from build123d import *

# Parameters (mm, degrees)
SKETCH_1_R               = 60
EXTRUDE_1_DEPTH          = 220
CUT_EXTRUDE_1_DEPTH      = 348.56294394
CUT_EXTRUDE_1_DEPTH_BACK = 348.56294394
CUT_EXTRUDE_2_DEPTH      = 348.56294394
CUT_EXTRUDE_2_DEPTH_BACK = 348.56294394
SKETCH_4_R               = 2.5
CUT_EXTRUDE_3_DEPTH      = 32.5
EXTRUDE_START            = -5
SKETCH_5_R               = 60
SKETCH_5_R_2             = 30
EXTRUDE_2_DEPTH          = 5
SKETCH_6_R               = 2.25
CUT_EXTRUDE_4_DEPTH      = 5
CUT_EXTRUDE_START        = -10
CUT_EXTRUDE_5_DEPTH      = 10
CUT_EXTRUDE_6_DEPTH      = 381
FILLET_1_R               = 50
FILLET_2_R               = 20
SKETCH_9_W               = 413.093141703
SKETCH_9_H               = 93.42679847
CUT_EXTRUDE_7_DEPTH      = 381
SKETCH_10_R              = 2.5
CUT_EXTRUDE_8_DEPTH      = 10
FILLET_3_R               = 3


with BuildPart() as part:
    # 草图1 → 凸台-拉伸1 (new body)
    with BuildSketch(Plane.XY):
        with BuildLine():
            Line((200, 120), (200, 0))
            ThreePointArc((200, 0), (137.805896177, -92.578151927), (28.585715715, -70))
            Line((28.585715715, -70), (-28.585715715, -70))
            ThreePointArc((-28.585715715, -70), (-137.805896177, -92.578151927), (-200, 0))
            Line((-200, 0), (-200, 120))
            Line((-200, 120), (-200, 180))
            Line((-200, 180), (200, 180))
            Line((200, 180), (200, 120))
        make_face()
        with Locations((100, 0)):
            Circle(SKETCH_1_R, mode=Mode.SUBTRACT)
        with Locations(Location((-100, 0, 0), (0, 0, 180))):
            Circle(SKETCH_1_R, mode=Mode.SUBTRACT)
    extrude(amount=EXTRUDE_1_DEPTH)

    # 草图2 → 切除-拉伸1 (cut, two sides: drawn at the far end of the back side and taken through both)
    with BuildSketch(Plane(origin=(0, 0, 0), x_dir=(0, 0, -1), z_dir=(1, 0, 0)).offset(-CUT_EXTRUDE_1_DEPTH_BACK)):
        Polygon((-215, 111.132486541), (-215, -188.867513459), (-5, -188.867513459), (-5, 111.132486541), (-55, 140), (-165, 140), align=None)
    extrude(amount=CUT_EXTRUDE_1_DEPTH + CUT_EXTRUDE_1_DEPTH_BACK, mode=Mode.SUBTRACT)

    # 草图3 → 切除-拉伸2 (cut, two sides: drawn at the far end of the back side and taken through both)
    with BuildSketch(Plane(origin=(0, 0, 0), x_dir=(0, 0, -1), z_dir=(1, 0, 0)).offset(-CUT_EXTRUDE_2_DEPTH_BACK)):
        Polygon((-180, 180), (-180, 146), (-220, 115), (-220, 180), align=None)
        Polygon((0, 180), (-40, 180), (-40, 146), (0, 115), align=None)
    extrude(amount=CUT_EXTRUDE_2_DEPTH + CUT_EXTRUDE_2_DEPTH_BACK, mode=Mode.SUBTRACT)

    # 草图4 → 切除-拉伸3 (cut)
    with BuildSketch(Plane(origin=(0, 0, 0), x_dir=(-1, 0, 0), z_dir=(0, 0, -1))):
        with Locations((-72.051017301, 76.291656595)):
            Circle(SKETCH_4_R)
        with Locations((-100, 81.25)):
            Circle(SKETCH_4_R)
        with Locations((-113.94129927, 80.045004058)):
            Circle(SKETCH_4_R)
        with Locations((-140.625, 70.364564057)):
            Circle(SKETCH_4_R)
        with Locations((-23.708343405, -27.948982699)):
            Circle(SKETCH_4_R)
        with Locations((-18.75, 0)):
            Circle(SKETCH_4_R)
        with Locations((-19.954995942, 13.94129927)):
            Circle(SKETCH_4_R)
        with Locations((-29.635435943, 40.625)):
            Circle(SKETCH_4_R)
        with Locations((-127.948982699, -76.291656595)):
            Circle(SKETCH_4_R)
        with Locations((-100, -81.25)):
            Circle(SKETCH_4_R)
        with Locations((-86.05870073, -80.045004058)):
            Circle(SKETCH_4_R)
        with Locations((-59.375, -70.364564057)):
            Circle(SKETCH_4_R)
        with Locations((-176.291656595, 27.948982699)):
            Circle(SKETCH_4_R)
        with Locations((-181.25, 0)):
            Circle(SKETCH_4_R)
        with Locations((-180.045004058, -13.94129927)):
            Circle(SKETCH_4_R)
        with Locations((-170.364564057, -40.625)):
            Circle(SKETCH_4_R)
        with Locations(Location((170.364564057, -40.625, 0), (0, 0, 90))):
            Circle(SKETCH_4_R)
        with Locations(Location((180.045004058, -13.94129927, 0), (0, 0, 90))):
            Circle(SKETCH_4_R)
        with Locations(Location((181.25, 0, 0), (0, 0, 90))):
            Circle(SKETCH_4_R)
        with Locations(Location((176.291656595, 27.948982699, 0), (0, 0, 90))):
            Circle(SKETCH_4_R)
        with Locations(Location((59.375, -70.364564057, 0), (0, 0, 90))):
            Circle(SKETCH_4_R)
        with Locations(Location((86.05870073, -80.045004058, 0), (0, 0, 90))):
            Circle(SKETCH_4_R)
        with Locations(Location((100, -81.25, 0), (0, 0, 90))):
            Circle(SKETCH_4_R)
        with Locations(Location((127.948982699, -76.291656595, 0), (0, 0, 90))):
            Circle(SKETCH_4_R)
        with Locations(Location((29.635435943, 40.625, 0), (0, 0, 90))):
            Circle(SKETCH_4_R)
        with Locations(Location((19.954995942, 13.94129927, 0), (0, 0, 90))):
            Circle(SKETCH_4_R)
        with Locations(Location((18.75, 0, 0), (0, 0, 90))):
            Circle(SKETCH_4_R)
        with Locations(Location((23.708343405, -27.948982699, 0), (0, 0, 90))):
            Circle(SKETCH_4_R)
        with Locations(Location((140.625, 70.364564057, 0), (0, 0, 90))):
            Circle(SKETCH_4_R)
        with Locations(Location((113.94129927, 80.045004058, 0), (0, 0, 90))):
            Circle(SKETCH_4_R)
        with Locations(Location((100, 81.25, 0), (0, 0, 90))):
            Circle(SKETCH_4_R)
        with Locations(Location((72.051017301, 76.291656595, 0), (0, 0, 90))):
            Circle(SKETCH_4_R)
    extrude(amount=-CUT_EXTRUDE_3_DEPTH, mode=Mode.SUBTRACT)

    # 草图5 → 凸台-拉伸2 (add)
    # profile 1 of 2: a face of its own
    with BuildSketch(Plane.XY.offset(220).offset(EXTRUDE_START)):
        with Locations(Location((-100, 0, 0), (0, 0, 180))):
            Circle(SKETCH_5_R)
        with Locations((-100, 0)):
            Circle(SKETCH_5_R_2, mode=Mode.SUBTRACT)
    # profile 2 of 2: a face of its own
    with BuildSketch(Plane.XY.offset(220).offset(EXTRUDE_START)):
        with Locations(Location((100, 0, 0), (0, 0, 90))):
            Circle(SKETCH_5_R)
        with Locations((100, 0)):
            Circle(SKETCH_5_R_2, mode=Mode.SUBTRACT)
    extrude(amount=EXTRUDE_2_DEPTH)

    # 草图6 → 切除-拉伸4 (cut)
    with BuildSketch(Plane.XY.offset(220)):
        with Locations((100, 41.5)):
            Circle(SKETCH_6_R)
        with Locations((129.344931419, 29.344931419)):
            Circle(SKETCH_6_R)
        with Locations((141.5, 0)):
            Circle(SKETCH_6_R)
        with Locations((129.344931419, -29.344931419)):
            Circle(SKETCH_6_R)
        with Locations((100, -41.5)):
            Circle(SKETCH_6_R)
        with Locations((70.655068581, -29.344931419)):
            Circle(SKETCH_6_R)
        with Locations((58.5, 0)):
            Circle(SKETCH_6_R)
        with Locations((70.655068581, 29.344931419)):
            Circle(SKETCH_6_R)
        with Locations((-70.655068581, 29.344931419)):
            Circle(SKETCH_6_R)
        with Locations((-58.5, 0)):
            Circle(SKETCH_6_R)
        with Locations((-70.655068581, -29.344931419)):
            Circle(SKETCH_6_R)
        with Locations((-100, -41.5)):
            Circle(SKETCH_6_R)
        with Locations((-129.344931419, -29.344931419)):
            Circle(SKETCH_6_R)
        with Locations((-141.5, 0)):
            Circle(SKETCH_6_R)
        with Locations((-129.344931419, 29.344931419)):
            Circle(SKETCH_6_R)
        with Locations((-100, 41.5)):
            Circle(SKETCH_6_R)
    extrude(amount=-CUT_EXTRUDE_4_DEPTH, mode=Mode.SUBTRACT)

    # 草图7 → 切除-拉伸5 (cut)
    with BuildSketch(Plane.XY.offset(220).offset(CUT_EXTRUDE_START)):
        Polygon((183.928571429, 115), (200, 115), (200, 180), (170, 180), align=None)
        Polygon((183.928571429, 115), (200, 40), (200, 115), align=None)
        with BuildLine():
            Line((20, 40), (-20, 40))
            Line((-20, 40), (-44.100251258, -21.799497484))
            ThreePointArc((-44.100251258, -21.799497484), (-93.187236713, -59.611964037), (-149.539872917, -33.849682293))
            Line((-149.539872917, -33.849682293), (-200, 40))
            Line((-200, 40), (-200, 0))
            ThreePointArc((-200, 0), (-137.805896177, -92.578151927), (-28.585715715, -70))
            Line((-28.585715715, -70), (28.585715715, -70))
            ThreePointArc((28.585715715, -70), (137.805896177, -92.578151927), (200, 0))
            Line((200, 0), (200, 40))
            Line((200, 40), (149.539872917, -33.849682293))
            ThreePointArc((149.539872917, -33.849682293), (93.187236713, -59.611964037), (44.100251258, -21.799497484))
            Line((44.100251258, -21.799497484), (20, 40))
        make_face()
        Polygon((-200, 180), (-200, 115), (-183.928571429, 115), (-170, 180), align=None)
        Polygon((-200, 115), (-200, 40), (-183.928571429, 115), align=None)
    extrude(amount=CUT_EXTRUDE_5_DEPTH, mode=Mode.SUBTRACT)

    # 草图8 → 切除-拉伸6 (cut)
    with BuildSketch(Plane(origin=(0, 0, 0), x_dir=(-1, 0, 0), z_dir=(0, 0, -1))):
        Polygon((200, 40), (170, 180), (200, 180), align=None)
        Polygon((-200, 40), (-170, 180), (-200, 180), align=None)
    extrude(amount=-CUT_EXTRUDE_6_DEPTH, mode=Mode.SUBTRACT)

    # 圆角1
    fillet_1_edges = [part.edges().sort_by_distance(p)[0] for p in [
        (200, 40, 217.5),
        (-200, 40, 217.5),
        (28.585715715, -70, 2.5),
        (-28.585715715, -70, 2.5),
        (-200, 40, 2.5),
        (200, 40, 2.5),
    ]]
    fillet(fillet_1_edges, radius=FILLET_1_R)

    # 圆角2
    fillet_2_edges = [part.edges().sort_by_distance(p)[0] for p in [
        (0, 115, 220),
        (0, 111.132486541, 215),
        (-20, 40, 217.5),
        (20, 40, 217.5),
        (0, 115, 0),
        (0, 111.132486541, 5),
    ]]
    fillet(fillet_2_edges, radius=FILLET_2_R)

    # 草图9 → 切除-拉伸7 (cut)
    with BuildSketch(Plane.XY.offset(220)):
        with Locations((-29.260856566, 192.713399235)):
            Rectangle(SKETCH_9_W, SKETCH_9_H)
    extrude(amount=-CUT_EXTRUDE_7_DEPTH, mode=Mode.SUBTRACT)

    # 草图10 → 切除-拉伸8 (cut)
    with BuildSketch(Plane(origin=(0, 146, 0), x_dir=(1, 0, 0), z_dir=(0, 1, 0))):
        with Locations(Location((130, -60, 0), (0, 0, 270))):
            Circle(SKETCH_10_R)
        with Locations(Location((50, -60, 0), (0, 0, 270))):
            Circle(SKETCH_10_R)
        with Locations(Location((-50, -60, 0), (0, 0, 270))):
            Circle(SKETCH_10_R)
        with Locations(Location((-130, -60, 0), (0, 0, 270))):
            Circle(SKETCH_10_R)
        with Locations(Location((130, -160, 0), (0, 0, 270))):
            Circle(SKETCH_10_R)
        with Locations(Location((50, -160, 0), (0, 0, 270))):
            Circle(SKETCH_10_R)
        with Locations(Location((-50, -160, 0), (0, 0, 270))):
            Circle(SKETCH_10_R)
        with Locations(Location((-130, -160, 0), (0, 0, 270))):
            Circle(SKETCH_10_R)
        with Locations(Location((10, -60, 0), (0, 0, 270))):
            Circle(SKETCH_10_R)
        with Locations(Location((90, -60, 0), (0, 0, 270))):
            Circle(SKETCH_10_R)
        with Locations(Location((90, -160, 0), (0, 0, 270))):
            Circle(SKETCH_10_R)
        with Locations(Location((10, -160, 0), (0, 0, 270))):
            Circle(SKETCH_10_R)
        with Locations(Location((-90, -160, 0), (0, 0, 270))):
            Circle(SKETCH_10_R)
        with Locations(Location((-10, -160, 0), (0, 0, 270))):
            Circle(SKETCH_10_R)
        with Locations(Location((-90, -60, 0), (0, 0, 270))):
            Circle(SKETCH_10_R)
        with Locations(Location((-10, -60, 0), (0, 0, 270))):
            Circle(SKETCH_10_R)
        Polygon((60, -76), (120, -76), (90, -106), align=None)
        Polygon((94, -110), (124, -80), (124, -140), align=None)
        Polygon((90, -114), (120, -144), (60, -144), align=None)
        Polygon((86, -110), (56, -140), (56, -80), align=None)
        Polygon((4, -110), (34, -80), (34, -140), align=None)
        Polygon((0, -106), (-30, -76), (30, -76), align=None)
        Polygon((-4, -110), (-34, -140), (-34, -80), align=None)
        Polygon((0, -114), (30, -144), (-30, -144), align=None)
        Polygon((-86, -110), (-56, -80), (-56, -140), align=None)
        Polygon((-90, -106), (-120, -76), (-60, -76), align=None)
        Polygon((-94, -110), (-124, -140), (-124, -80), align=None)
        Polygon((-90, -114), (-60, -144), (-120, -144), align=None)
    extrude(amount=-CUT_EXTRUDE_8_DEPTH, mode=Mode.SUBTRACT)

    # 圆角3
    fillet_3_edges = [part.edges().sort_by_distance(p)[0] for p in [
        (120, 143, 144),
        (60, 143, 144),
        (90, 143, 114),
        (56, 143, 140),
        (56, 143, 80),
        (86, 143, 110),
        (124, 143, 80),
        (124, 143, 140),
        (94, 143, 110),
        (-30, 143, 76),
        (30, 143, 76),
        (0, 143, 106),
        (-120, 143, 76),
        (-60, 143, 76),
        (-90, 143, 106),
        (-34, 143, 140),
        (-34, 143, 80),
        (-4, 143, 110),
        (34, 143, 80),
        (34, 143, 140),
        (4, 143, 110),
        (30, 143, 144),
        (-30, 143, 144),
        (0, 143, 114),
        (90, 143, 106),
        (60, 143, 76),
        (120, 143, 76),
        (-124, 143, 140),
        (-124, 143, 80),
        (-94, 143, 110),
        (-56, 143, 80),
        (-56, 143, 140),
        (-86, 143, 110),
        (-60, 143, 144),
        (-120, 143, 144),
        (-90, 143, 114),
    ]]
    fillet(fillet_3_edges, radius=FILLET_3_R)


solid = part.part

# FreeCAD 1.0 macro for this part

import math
import FreeCAD as App
import Part
import Sketcher

V = App.Vector
Q = App.Units.Quantity


def edges_at(feature, points):
    """Names of the edges that pass closest to the given points."""
    edges = feature.Shape.Edges
    near = lambda p: min(range(len(edges)), key=lambda i: edges[i].distToShape(Part.Vertex(*p))[0])
    return sorted({f"Edge{near(p) + 1}" for p in points})

doc = App.newDocument("Part")
params = doc.addObject("Spreadsheet::Sheet", "Params")
for row, (alias, value) in enumerate([
    ("sketch1_diameter", "120 mm"),
    ("sketch1_radius", "100 mm"),
    ("sketch1_width", "400 mm"),
    ("sketch1_height", "180 mm"),
    ("pad1_length", "220 mm"),
    ("sketch2_width", "300 mm"),
    ("sketch2_height", "210 mm"),
    ("sketch2_height2", "110 mm"),
    ("sketch3_width", "34 mm"),
    ("sketch3_width2", "65 mm"),
    ("sketch3_height", "40 mm"),
    ("sketch4_diameter", "5 mm"),
    ("pocket3_length", "32.5 mm"),
    ("sketch5_diameter", "120 mm"),
    ("sketch5_diameter2", "60 mm"),
    ("pad2_length", "5 mm"),
    ("sketch6_diameter", "4.5 mm"),
    ("pocket4_length", "5 mm"),
    ("sketch7_radius", "60 mm"),
    ("sketch7_radius2", "100 mm"),
    ("sketch7_width", "30 mm"),
    ("sketch7_width2", "40 mm"),
    ("sketch7_height", "140 mm"),
    ("pocket5_length", "10 mm"),
    ("sketch8_width", "30 mm"),
    ("sketch8_height", "140 mm"),
    ("pocket6_length", "381 mm"),
    ("fillet_radius", "50 mm"),
    ("fillet2_radius", "20 mm"),
    ("pocket7_length", "381 mm"),
    ("sketch10_diameter", "5 mm"),
    ("sketch10_width", "60 mm"),
    ("pocket8_length", "10 mm"),
    ("fillet3_radius", "3 mm"),
], start=1):
    params.set(f"A{row}", alias)
    params.set(f"B{row}", "=" + value)
    params.setAlias(f"B{row}", alias)

body = doc.addObject("PartDesign::Body", "Body")

sketch1 = doc.addObject("Sketcher::SketchObject", "Sketch")
body.addObject(sketch1)
sketch1.AttachmentSupport = (doc.XY_Plane, [""])
sketch1.MapMode = "FlatFace"
sketch1.addGeometry([
    Part.ArcOfCircle(Part.Circle(V(100, 0, 0), V(0, 0, 1), 100), math.radians(-136), math.radians(0)),
    Part.LineSegment(V(200, 0, 0), V(200, 180, 0)),
    Part.LineSegment(V(200, 180, 0), V(-200, 180, 0)),
    Part.LineSegment(V(-200, 180, 0), V(-200, 0, 0)),
    Part.ArcOfCircle(Part.Circle(V(-100, 0, 0), V(0, 0, 1), 100), math.radians(180), math.radians(316)),
    Part.LineSegment(V(-29, -70, 0), V(29, -70, 0)),
    Part.Circle(V(100, 0, 0), V(0, 0, 1), 60),
    Part.Circle(V(-100, 0, 0), V(0, 0, 1), 60),
], False)
sketch1.addConstraint([
    Sketcher.Constraint("Tangent", 0, 2, 1, 1),
    Sketcher.Constraint("Coincident", 1, 2, 2, 1),
    Sketcher.Constraint("Coincident", 2, 2, 3, 1),
    Sketcher.Constraint("Tangent", 3, 2, 4, 1),
    Sketcher.Constraint("Coincident", 4, 2, 5, 1),
    Sketcher.Constraint("Coincident", 5, 2, 0, 1),
    Sketcher.Constraint("Vertical", 1),
    Sketcher.Constraint("Horizontal", 2),
    Sketcher.Constraint("Vertical", 3),
    Sketcher.Constraint("Horizontal", 5),
    Sketcher.Constraint("Coincident", 6, 3, 0, 3),
    Sketcher.Constraint("Coincident", 7, 3, 4, 3),
    Sketcher.Constraint("Equal", 0, 4),
    Sketcher.Constraint("Equal", 6, 7),
    Sketcher.Constraint("Symmetric", 0, 3, 4, 3, -1, 1),
    Sketcher.Constraint("PointOnObject", 0, 3, -1),
    Sketcher.Constraint("Diameter", 6, 120.0),
    Sketcher.Constraint("Radius", 0, 100.0),
    Sketcher.Constraint("DistanceX", 2, 2, 2, 1, 400.0),
    Sketcher.Constraint("DistanceY", 1, 1, 1, 2, 180.0),
    Sketcher.Constraint("DistanceY", 4, 2, -1, 1, 70.0),
])
sketch1.setExpression("Constraints[16]", "Params.sketch1_diameter")
sketch1.setExpression("Constraints[17]", "Params.sketch1_radius")
sketch1.setExpression("Constraints[18]", "Params.sketch1_width")
sketch1.setExpression("Constraints[19]", "Params.sketch1_height")
pad1 = doc.addObject("PartDesign::Pad", "Pad")
body.addObject(pad1)
pad1.Profile = sketch1
pad1.setExpression("Length", "Params.pad1_length")

sketch2 = doc.addObject("Sketcher::SketchObject", "Sketch001")
body.addObject(sketch2)
sketch2.AttachmentSupport = (doc.YZ_Plane, [""])
sketch2.MapMode = "FlatFace"
sketch2.addGeometry([
    Part.LineSegment(V(111, 215, 0), V(-189, 215, 0)),
    Part.LineSegment(V(-189, 215, 0), V(-189, 5, 0)),
    Part.LineSegment(V(-189, 5, 0), V(111, 5, 0)),
    Part.LineSegment(V(111, 5, 0), V(140, 55, 0)),
    Part.LineSegment(V(140, 55, 0), V(140, 165, 0)),
    Part.LineSegment(V(140, 165, 0), V(111, 215, 0)),
], False)
sketch2.addConstraint([
    Sketcher.Constraint("Coincident", 0, 2, 1, 1),
    Sketcher.Constraint("Coincident", 1, 2, 2, 1),
    Sketcher.Constraint("Coincident", 2, 2, 3, 1),
    Sketcher.Constraint("Coincident", 3, 2, 4, 1),
    Sketcher.Constraint("Coincident", 4, 2, 5, 1),
    Sketcher.Constraint("Coincident", 5, 2, 0, 1),
    Sketcher.Constraint("Horizontal", 0),
    Sketcher.Constraint("Vertical", 1),
    Sketcher.Constraint("Horizontal", 2),
    Sketcher.Constraint("Vertical", 4),
    Sketcher.Constraint("Vertical", 2, 2, 5, 2),
    Sketcher.Constraint("Equal", 3, 5),
    Sketcher.Constraint("DistanceX", 0, 2, 0, 1, 300.0),
    Sketcher.Constraint("DistanceY", 1, 2, 1, 1, 210.0),
    Sketcher.Constraint("DistanceY", 4, 1, 4, 2, 110.0),
    Sketcher.Constraint("Angle", 3, Q("60 deg")),
    Sketcher.Constraint("DistanceY", -1, 1, 0, 2, 215.0),
    Sketcher.Constraint("DistanceX", -1, 1, 3, 2, 140.0),
])
sketch2.setExpression("Constraints[12]", "Params.sketch2_width")
sketch2.setExpression("Constraints[13]", "Params.sketch2_height")
sketch2.setExpression("Constraints[14]", "Params.sketch2_height2")
pocket1 = doc.addObject("PartDesign::Pocket", "Pocket")
body.addObject(pocket1)
pocket1.Profile = sketch2
pocket1.Type = "ThroughAll"
pocket1.Midplane = True

sketch3 = doc.addObject("Sketcher::SketchObject", "Sketch002")
body.addObject(sketch3)
sketch3.AttachmentSupport = (doc.YZ_Plane, [""])
sketch3.MapMode = "FlatFace"
sketch3.addGeometry([
    Part.LineSegment(V(146, 180, 0), V(180, 180, 0)),
    Part.LineSegment(V(180, 180, 0), V(180, 220, 0)),
    Part.LineSegment(V(180, 220, 0), V(115, 220, 0)),
    Part.LineSegment(V(115, 220, 0), V(146, 180, 0)),
    Part.LineSegment(V(180, 0, 0), V(180, 40, 0)),
    Part.LineSegment(V(180, 40, 0), V(146, 40, 0)),
    Part.LineSegment(V(146, 40, 0), V(115, 0, 0)),
    Part.LineSegment(V(115, 0, 0), V(180, 0, 0)),
], False)
sketch3.addConstraint([
    Sketcher.Constraint("Coincident", 0, 2, 1, 1),
    Sketcher.Constraint("Coincident", 1, 2, 2, 1),
    Sketcher.Constraint("Coincident", 2, 2, 3, 1),
    Sketcher.Constraint("Coincident", 3, 2, 0, 1),
    Sketcher.Constraint("Coincident", 4, 2, 5, 1),
    Sketcher.Constraint("Coincident", 5, 2, 6, 1),
    Sketcher.Constraint("Coincident", 6, 2, 7, 1),
    Sketcher.Constraint("Coincident", 7, 2, 4, 1),
    Sketcher.Constraint("Horizontal", 0),
    Sketcher.Constraint("Vertical", 1),
    Sketcher.Constraint("Horizontal", 2),
    Sketcher.Constraint("Vertical", 4),
    Sketcher.Constraint("Horizontal", 5),
    Sketcher.Constraint("Horizontal", 7),
    Sketcher.Constraint("PointOnObject", 6, 2, -1),
    Sketcher.Constraint("Vertical", 1, 2, 4, 2),
    Sketcher.Constraint("Vertical", 3, 2, 5, 2),
    Sketcher.Constraint("Vertical", 2, 2, 6, 2),
    Sketcher.Constraint("Equal", 1, 4),
    Sketcher.Constraint("DistanceX", 0, 1, 0, 2, 34.0),
    Sketcher.Constraint("DistanceX", 2, 2, 2, 1, 65.0),
    Sketcher.Constraint("DistanceY", 1, 1, 1, 2, 40.0),
    Sketcher.Constraint("DistanceX", -1, 1, 0, 2, 180.0),
    Sketcher.Constraint("DistanceY", -1, 1, 0, 2, 180.0),
])
sketch3.setExpression("Constraints[19]", "Params.sketch3_width")
sketch3.setExpression("Constraints[20]", "Params.sketch3_width2")
sketch3.setExpression("Constraints[21]", "Params.sketch3_height")
pocket2 = doc.addObject("PartDesign::Pocket", "Pocket001")
body.addObject(pocket2)
pocket2.Profile = sketch3
pocket2.Type = "ThroughAll"
pocket2.Midplane = True

sketch4 = doc.addObject("Sketcher::SketchObject", "Sketch003")
body.addObject(sketch4)
sketch4.AttachmentSupport = (doc.XY_Plane, [""])
sketch4.MapMode = "FlatFace"
sketch4.addGeometry([
    Part.Circle(V(72.1, 76.3, 0), V(0, 0, 1), 2.5),
    Part.Circle(V(100, 81.2, 0), V(0, 0, 1), 2.5),
    Part.Circle(V(113.9, 80, 0), V(0, 0, 1), 2.5),
    Part.Circle(V(140.6, 70.4, 0), V(0, 0, 1), 2.5),
    Part.Circle(V(23.7, -27.9, 0), V(0, 0, 1), 2.5),
    Part.Circle(V(18.8, 0, 0), V(0, 0, 1), 2.5),
    Part.Circle(V(20, 13.9, 0), V(0, 0, 1), 2.5),
    Part.Circle(V(29.6, 40.6, 0), V(0, 0, 1), 2.5),
    Part.Circle(V(127.9, -76.3, 0), V(0, 0, 1), 2.5),
    Part.Circle(V(100, -81.2, 0), V(0, 0, 1), 2.5),
    Part.Circle(V(86.1, -80, 0), V(0, 0, 1), 2.5),
    Part.Circle(V(59.4, -70.4, 0), V(0, 0, 1), 2.5),
    Part.Circle(V(176.3, 27.9, 0), V(0, 0, 1), 2.5),
    Part.Circle(V(181.2, 0, 0), V(0, 0, 1), 2.5),
    Part.Circle(V(180, -13.9, 0), V(0, 0, 1), 2.5),
    Part.Circle(V(170.4, -40.6, 0), V(0, 0, 1), 2.5),
    Part.Circle(V(-170.4, -40.6, 0), V(0, 0, 1), 2.5),
    Part.Circle(V(-180, -13.9, 0), V(0, 0, 1), 2.5),
    Part.Circle(V(-181.2, 0, 0), V(0, 0, 1), 2.5),
    Part.Circle(V(-176.3, 27.9, 0), V(0, 0, 1), 2.5),
    Part.Circle(V(-59.4, -70.4, 0), V(0, 0, 1), 2.5),
    Part.Circle(V(-86.1, -80, 0), V(0, 0, 1), 2.5),
    Part.Circle(V(-100, -81.2, 0), V(0, 0, 1), 2.5),
    Part.Circle(V(-127.9, -76.3, 0), V(0, 0, 1), 2.5),
    Part.Circle(V(-29.6, 40.6, 0), V(0, 0, 1), 2.5),
    Part.Circle(V(-20, 13.9, 0), V(0, 0, 1), 2.5),
    Part.Circle(V(-18.8, 0, 0), V(0, 0, 1), 2.5),
    Part.Circle(V(-23.7, -27.9, 0), V(0, 0, 1), 2.5),
    Part.Circle(V(-140.6, 70.4, 0), V(0, 0, 1), 2.5),
    Part.Circle(V(-113.9, 80, 0), V(0, 0, 1), 2.5),
    Part.Circle(V(-100, 81.2, 0), V(0, 0, 1), 2.5),
    Part.Circle(V(-72.1, 76.3, 0), V(0, 0, 1), 2.5),
], False)
sketch4.addConstraint([
    Sketcher.Constraint("Equal", 0, 1),
    Sketcher.Constraint("Equal", 1, 2),
    Sketcher.Constraint("Equal", 2, 3),
    Sketcher.Constraint("Equal", 3, 4),
    Sketcher.Constraint("Equal", 4, 5),
    Sketcher.Constraint("Equal", 5, 6),
    Sketcher.Constraint("Equal", 6, 7),
    Sketcher.Constraint("Equal", 7, 8),
    Sketcher.Constraint("Equal", 8, 9),
    Sketcher.Constraint("Equal", 9, 10),
    Sketcher.Constraint("Equal", 10, 11),
    Sketcher.Constraint("Equal", 11, 12),
    Sketcher.Constraint("Equal", 12, 13),
    Sketcher.Constraint("Equal", 13, 14),
    Sketcher.Constraint("Equal", 14, 15),
    Sketcher.Constraint("Equal", 15, 16),
    Sketcher.Constraint("Equal", 16, 17),
    Sketcher.Constraint("Equal", 17, 18),
    Sketcher.Constraint("Equal", 18, 19),
    Sketcher.Constraint("Equal", 19, 20),
    Sketcher.Constraint("Equal", 20, 21),
    Sketcher.Constraint("Equal", 21, 22),
    Sketcher.Constraint("Equal", 22, 23),
    Sketcher.Constraint("Equal", 23, 24),
    Sketcher.Constraint("Equal", 24, 25),
    Sketcher.Constraint("Equal", 25, 26),
    Sketcher.Constraint("Equal", 26, 27),
    Sketcher.Constraint("Equal", 27, 28),
    Sketcher.Constraint("Equal", 28, 29),
    Sketcher.Constraint("Equal", 29, 30),
    Sketcher.Constraint("Equal", 30, 31),
    Sketcher.Constraint("Symmetric", 13, 3, 18, 3, -1, 1),
    Sketcher.Constraint("Symmetric", 1, 3, 22, 3, -1, 1),
    Sketcher.Constraint("Symmetric", 5, 3, 26, 3, -1, 1),
    Sketcher.Constraint("Symmetric", 9, 3, 30, 3, -1, 1),
    Sketcher.Constraint("Symmetric", 15, 3, 16, 3, -2),
    Sketcher.Constraint("Symmetric", 14, 3, 17, 3, -2),
    Sketcher.Constraint("Symmetric", 12, 3, 19, 3, -2),
    Sketcher.Constraint("Symmetric", 11, 3, 20, 3, -2),
    Sketcher.Constraint("Symmetric", 10, 3, 21, 3, -2),
    Sketcher.Constraint("Symmetric", 9, 3, 22, 3, -2),
    Sketcher.Constraint("Symmetric", 8, 3, 23, 3, -2),
    Sketcher.Constraint("Symmetric", 7, 3, 24, 3, -2),
    Sketcher.Constraint("Symmetric", 6, 3, 25, 3, -2),
    Sketcher.Constraint("Symmetric", 4, 3, 27, 3, -2),
    Sketcher.Constraint("Symmetric", 3, 3, 28, 3, -2),
    Sketcher.Constraint("Symmetric", 2, 3, 29, 3, -2),
    Sketcher.Constraint("Symmetric", 0, 3, 31, 3, -2),
    Sketcher.Constraint("PointOnObject", 5, 3, -1),
    Sketcher.Constraint("PointOnObject", 13, 3, -1),
    Sketcher.Constraint("Diameter", 0, 5.0),
    Sketcher.Constraint("DistanceX", -1, 1, 1, 3, 100.0),
    Sketcher.Constraint("DistanceX", 16, 3, 7, 3, 200.0),
    Sketcher.Constraint("DistanceX", 17, 3, 6, 3, 200.0),
    Sketcher.Constraint("DistanceX", 18, 3, 5, 3, 200.0),
    Sketcher.Constraint("DistanceX", 26, 3, 5, 3, 37.5),
    Sketcher.Constraint("DistanceY", -1, 1, 1, 3, 81.25),
    Sketcher.Constraint("DistanceY", 16, 3, 7, 3, 81.25),
    Sketcher.Constraint("DistanceX", 20, 3, 11, 3, 118.75),
    Sketcher.Constraint("DistanceX", -1, 1, 3, 3, 140.625),
    Sketcher.Constraint("DistanceY", -1, 1, 7, 3, 40.625),
    Sketcher.Constraint("DistanceX", -1, 1, 2, 3, 113.941299),
    Sketcher.Constraint("DistanceY", -1, 1, 6, 3, 13.941299),
    Sketcher.Constraint("DistanceX", -1, 1, 10, 3, 86.058701),
    Sketcher.Constraint("DistanceY", 14, 3, -1, 1, 13.941299),
    Sketcher.Constraint("DistanceX", 0, 3, 2, 3, 41.890282),
    Sketcher.Constraint("DistanceY", 3, 3, 2, 3, 9.68044),
    Sketcher.Constraint("DistanceY", 4, 3, 0, 3, 104.240639),
    Sketcher.Constraint("DistanceY", 4, 3, 6, 3, 41.890282),
    Sketcher.Constraint("DistanceX", 6, 3, 0, 3, 52.096021),
    Sketcher.Constraint("DistanceX", 6, 3, 7, 3, 9.68044),
    Sketcher.Constraint("DistanceX", 4, 3, 8, 3, 104.240639),
    Sketcher.Constraint("DistanceY", 8, 3, 3, 3, 146.656221),
    Sketcher.Constraint("DistanceX", 10, 3, 8, 3, 41.890282),
    Sketcher.Constraint("DistanceY", 10, 3, 4, 3, 52.096021),
    Sketcher.Constraint("DistanceY", 10, 3, 11, 3, 9.68044),
    Sketcher.Constraint("DistanceY", 12, 3, 3, 3, 42.415581),
    Sketcher.Constraint("DistanceX", 0, 3, 12, 3, 104.240639),
    Sketcher.Constraint("DistanceY", 14, 3, 12, 3, 41.890282),
])
sketch4.setExpression("Constraints[50]", "Params.sketch4_diameter")
pocket3 = doc.addObject("PartDesign::Pocket", "Pocket002")
body.addObject(pocket3)
pocket3.Profile = sketch4
pocket3.setExpression("Length", "Params.pocket3_length")
pocket3.Reversed = True

sketch5 = doc.addObject("Sketcher::SketchObject", "Sketch004")
body.addObject(sketch5)
sketch5.AttachmentSupport = (doc.XY_Plane, [""])
sketch5.MapMode = "FlatFace"
sketch5.AttachmentOffset = App.Placement(V(0, 0, 215), App.Rotation())
sketch5.addGeometry([
    Part.Circle(V(-100, 0, 0), V(0, 0, 1), 60),
    Part.Circle(V(-100, 0, 0), V(0, 0, 1), 30),
    Part.Circle(V(100, 0, 0), V(0, 0, 1), 60),
    Part.Circle(V(100, 0, 0), V(0, 0, 1), 30),
], False)
sketch5.addConstraint([
    Sketcher.Constraint("Coincident", 1, 3, 0, 3),
    Sketcher.Constraint("Coincident", 3, 3, 2, 3),
    Sketcher.Constraint("Equal", 0, 2),
    Sketcher.Constraint("Equal", 1, 3),
    Sketcher.Constraint("Symmetric", 0, 3, 2, 3, -1, 1),
    Sketcher.Constraint("PointOnObject", 0, 3, -1),
    Sketcher.Constraint("Diameter", 0, 120.0),
    Sketcher.Constraint("Diameter", 1, 60.0),
    Sketcher.Constraint("DistanceX", 0, 3, -1, 1, 100.0),
])
sketch5.setExpression("Constraints[6]", "Params.sketch5_diameter")
sketch5.setExpression("Constraints[7]", "Params.sketch5_diameter2")
pad2 = doc.addObject("PartDesign::Pad", "Pad001")
body.addObject(pad2)
pad2.Profile = sketch5
pad2.setExpression("Length", "Params.pad2_length")

sketch6 = doc.addObject("Sketcher::SketchObject", "Sketch005")
body.addObject(sketch6)
sketch6.AttachmentSupport = (doc.XY_Plane, [""])
sketch6.MapMode = "FlatFace"
sketch6.AttachmentOffset = App.Placement(V(0, 0, 220), App.Rotation())
sketch6.addGeometry([
    Part.Circle(V(100, 41.5, 0), V(0, 0, 1), 2.2),
    Part.Circle(V(129.3, 29.3, 0), V(0, 0, 1), 2.2),
    Part.Circle(V(141.5, 0, 0), V(0, 0, 1), 2.2),
    Part.Circle(V(129.3, -29.3, 0), V(0, 0, 1), 2.2),
    Part.Circle(V(100, -41.5, 0), V(0, 0, 1), 2.2),
    Part.Circle(V(70.7, -29.3, 0), V(0, 0, 1), 2.2),
    Part.Circle(V(58.5, 0, 0), V(0, 0, 1), 2.2),
    Part.Circle(V(70.7, 29.3, 0), V(0, 0, 1), 2.2),
    Part.Circle(V(-70.7, 29.3, 0), V(0, 0, 1), 2.2),
    Part.Circle(V(-58.5, 0, 0), V(0, 0, 1), 2.2),
    Part.Circle(V(-70.7, -29.3, 0), V(0, 0, 1), 2.2),
    Part.Circle(V(-100, -41.5, 0), V(0, 0, 1), 2.2),
    Part.Circle(V(-129.3, -29.3, 0), V(0, 0, 1), 2.2),
    Part.Circle(V(-141.5, 0, 0), V(0, 0, 1), 2.2),
    Part.Circle(V(-129.3, 29.3, 0), V(0, 0, 1), 2.2),
    Part.Circle(V(-100, 41.5, 0), V(0, 0, 1), 2.2),
], False)
sketch6.addConstraint([
    Sketcher.Constraint("Equal", 0, 1),
    Sketcher.Constraint("Equal", 1, 2),
    Sketcher.Constraint("Equal", 2, 3),
    Sketcher.Constraint("Equal", 3, 4),
    Sketcher.Constraint("Equal", 4, 5),
    Sketcher.Constraint("Equal", 5, 6),
    Sketcher.Constraint("Equal", 6, 7),
    Sketcher.Constraint("Equal", 7, 8),
    Sketcher.Constraint("Equal", 8, 9),
    Sketcher.Constraint("Equal", 9, 10),
    Sketcher.Constraint("Equal", 10, 11),
    Sketcher.Constraint("Equal", 11, 12),
    Sketcher.Constraint("Equal", 12, 13),
    Sketcher.Constraint("Equal", 13, 14),
    Sketcher.Constraint("Equal", 14, 15),
    Sketcher.Constraint("Symmetric", 5, 3, 8, 3, -1, 1),
    Sketcher.Constraint("Symmetric", 6, 3, 9, 3, -1, 1),
    Sketcher.Constraint("Symmetric", 7, 3, 10, 3, -1, 1),
    Sketcher.Constraint("Symmetric", 0, 3, 11, 3, -1, 1),
    Sketcher.Constraint("Symmetric", 1, 3, 12, 3, -1, 1),
    Sketcher.Constraint("Symmetric", 2, 3, 13, 3, -1, 1),
    Sketcher.Constraint("Symmetric", 3, 3, 14, 3, -1, 1),
    Sketcher.Constraint("Symmetric", 4, 3, 15, 3, -1, 1),
    Sketcher.Constraint("Symmetric", 7, 3, 8, 3, -2),
    Sketcher.Constraint("Symmetric", 4, 3, 11, 3, -2),
    Sketcher.Constraint("Symmetric", 3, 3, 12, 3, -2),
    Sketcher.Constraint("PointOnObject", 2, 3, -1),
    Sketcher.Constraint("PointOnObject", 6, 3, -1),
    Sketcher.Constraint("Horizontal", 3, 3, 5, 3),
    Sketcher.Constraint("Diameter", 0, 4.5),
    Sketcher.Constraint("DistanceX", -1, 1, 0, 3, 100.0),
    Sketcher.Constraint("DistanceY", 4, 3, 0, 3, 83.0),
    Sketcher.Constraint("DistanceX", 9, 3, 6, 3, 117.0),
    Sketcher.Constraint("DistanceX", 13, 3, 9, 3, 83.0),
    Sketcher.Constraint("DistanceX", -1, 1, 1, 3, 129.344931),
    Sketcher.Constraint("DistanceY", -1, 1, 1, 3, 29.344931),
    Sketcher.Constraint("DistanceX", -1, 1, 5, 3, 70.655069),
])
sketch6.setExpression("Constraints[29]", "Params.sketch6_diameter")
pocket4 = doc.addObject("PartDesign::Pocket", "Pocket003")
body.addObject(pocket4)
pocket4.Profile = sketch6
pocket4.setExpression("Length", "Params.pocket4_length")

sketch7 = doc.addObject("Sketcher::SketchObject", "Sketch006")
body.addObject(sketch7)
sketch7.AttachmentSupport = (doc.XY_Plane, [""])
sketch7.MapMode = "FlatFace"
sketch7.AttachmentOffset = App.Placement(V(0, 0, 210), App.Rotation())
sketch7.addGeometry([
    Part.LineSegment(V(200, 180, 0), V(170, 180, 0)),
    Part.LineSegment(V(170, 180, 0), V(184, 115, 0)),
    Part.LineSegment(V(184, 115, 0), V(200, 40, 0)),
    Part.LineSegment(V(200, 40, 0), V(200, 180, 0)),
    Part.LineSegment(V(20, 40, 0), V(-20, 40, 0)),
    Part.LineSegment(V(-20, 40, 0), V(-44, -22, 0)),
    Part.ArcOfCircle(Part.Circle(V(-100, 0, 0), V(0, 0, 1), 60), math.radians(-146), math.radians(-21)),
    Part.LineSegment(V(-150, -34, 0), V(-200, 40, 0)),
    Part.LineSegment(V(-200, 40, 0), V(-200, 0, 0)),
    Part.ArcOfCircle(Part.Circle(V(-100, 0, 0), V(0, 0, 1), 100), math.radians(180), math.radians(316)),
    Part.LineSegment(V(-29, -70, 0), V(29, -70, 0)),
    Part.ArcOfCircle(Part.Circle(V(100, 0, 0), V(0, 0, 1), 100), math.radians(-136), math.radians(0)),
    Part.LineSegment(V(200, 0, 0), V(200, 40, 0)),
    Part.LineSegment(V(200, 40, 0), V(150, -34, 0)),
    Part.ArcOfCircle(Part.Circle(V(100, 0, 0), V(0, 0, 1), 60), math.radians(-159), math.radians(-34)),
    Part.LineSegment(V(44, -22, 0), V(20, 40, 0)),
    Part.LineSegment(V(-200, 180, 0), V(-200, 40, 0)),
    Part.LineSegment(V(-200, 40, 0), V(-184, 115, 0)),
    Part.LineSegment(V(-184, 115, 0), V(-170, 180, 0)),
    Part.LineSegment(V(-170, 180, 0), V(-200, 180, 0)),
], False)
sketch7.addConstraint([
    Sketcher.Constraint("Coincident", 0, 2, 1, 1),
    Sketcher.Constraint("Coincident", 1, 2, 2, 1),
    Sketcher.Constraint("Coincident", 2, 2, 3, 1),
    Sketcher.Constraint("Coincident", 3, 2, 0, 1),
    Sketcher.Constraint("Coincident", 4, 2, 5, 1),
    Sketcher.Constraint("Tangent", 5, 2, 6, 2),
    Sketcher.Constraint("Tangent", 6, 1, 7, 1),
    Sketcher.Constraint("Coincident", 7, 2, 8, 1),
    Sketcher.Constraint("Tangent", 8, 2, 9, 1),
    Sketcher.Constraint("Coincident", 9, 2, 10, 1),
    Sketcher.Constraint("Coincident", 10, 2, 11, 1),
    Sketcher.Constraint("Tangent", 11, 2, 12, 1),
    Sketcher.Constraint("Coincident", 12, 2, 13, 1),
    Sketcher.Constraint("Tangent", 13, 2, 14, 2),
    Sketcher.Constraint("Tangent", 14, 1, 15, 1),
    Sketcher.Constraint("Coincident", 15, 2, 4, 1),
    Sketcher.Constraint("Coincident", 16, 2, 17, 1),
    Sketcher.Constraint("Coincident", 17, 2, 18, 1),
    Sketcher.Constraint("Coincident", 18, 2, 19, 1),
    Sketcher.Constraint("Coincident", 19, 2, 16, 1),
    Sketcher.Constraint("Horizontal", 0),
    Sketcher.Constraint("Vertical", 3),
    Sketcher.Constraint("Horizontal", 4),
    Sketcher.Constraint("Vertical", 8),
    Sketcher.Constraint("Horizontal", 10),
    Sketcher.Constraint("Vertical", 12),
    Sketcher.Constraint("Vertical", 16),
    Sketcher.Constraint("Horizontal", 19),
    Sketcher.Constraint("Coincident", 9, 3, 6, 3),
    Sketcher.Constraint("Coincident", 14, 3, 11, 3),
    Sketcher.Constraint("Coincident", 12, 2, 2, 2),
    Sketcher.Constraint("Coincident", 16, 2, 7, 2),
    Sketcher.Constraint("Equal", 9, 11),
    Sketcher.Constraint("Equal", 6, 14),
    Sketcher.Constraint("Symmetric", 6, 3, 11, 3, -1, 1),
    Sketcher.Constraint("Symmetric", 6, 1, 13, 2, -2),
    Sketcher.Constraint("Symmetric", 1, 2, 17, 2, -2),
    Sketcher.Constraint("Symmetric", 0, 2, 18, 2, -2),
    Sketcher.Constraint("Parallel", 1, 2),
    Sketcher.Constraint("Horizontal", 2, 2, 4, 2),
    Sketcher.Constraint("Horizontal", 5, 2, 14, 1),
    Sketcher.Constraint("Equal", 4, 8),
    Sketcher.Constraint("Radius", 6, 60.0),
    Sketcher.Constraint("Radius", 9, 100.0),
    Sketcher.Constraint("DistanceX", 0, 2, 0, 1, 30.0),
    Sketcher.Constraint("DistanceX", 4, 2, 4, 1, 40.0),
    Sketcher.Constraint("DistanceY", 3, 1, 3, 2, 140.0),
    Sketcher.Constraint("DistanceX", 6, 3, -1, 1, 100.0),
    Sketcher.Constraint("DistanceY", -1, 1, 1, 2, 115.0),
    Sketcher.Constraint("DistanceY", 9, 2, -1, 1, 70.0),
])
sketch7.setExpression("Constraints[42]", "Params.sketch7_radius")
sketch7.setExpression("Constraints[43]", "Params.sketch7_radius2")
sketch7.setExpression("Constraints[44]", "Params.sketch7_width")
sketch7.setExpression("Constraints[45]", "Params.sketch7_width2")
sketch7.setExpression("Constraints[46]", "Params.sketch7_height")
pocket5 = doc.addObject("PartDesign::Pocket", "Pocket004")
body.addObject(pocket5)
pocket5.Profile = sketch7
pocket5.setExpression("Length", "Params.pocket5_length")
pocket5.Reversed = True

sketch8 = doc.addObject("Sketcher::SketchObject", "Sketch007")
body.addObject(sketch8)
sketch8.AttachmentSupport = (doc.XY_Plane, [""])
sketch8.MapMode = "FlatFace"
sketch8.addGeometry([
    Part.LineSegment(V(-170, 180, 0), V(-200, 40, 0)),
    Part.LineSegment(V(-200, 40, 0), V(-200, 180, 0)),
    Part.LineSegment(V(-200, 180, 0), V(-170, 180, 0)),
    Part.LineSegment(V(200, 40, 0), V(170, 180, 0)),
    Part.LineSegment(V(170, 180, 0), V(200, 180, 0)),
    Part.LineSegment(V(200, 180, 0), V(200, 40, 0)),
], False)
sketch8.addConstraint([
    Sketcher.Constraint("Coincident", 0, 2, 1, 1),
    Sketcher.Constraint("Coincident", 1, 2, 2, 1),
    Sketcher.Constraint("Coincident", 2, 2, 0, 1),
    Sketcher.Constraint("Coincident", 3, 2, 4, 1),
    Sketcher.Constraint("Coincident", 4, 2, 5, 1),
    Sketcher.Constraint("Coincident", 5, 2, 3, 1),
    Sketcher.Constraint("Vertical", 1),
    Sketcher.Constraint("Horizontal", 2),
    Sketcher.Constraint("Horizontal", 4),
    Sketcher.Constraint("Vertical", 5),
    Sketcher.Constraint("Symmetric", 2, 2, 3, 2, -2),
    Sketcher.Constraint("Symmetric", 0, 2, 5, 2, -2),
    Sketcher.Constraint("DistanceX", 2, 1, 2, 2, 30.0),
    Sketcher.Constraint("DistanceY", 1, 1, 1, 2, 140.0),
    Sketcher.Constraint("DistanceX", 0, 2, -1, 1, 200.0),
    Sketcher.Constraint("DistanceY", -1, 1, 0, 2, 40.0),
])
sketch8.setExpression("Constraints[12]", "Params.sketch8_width")
sketch8.setExpression("Constraints[13]", "Params.sketch8_height")
pocket6 = doc.addObject("PartDesign::Pocket", "Pocket005")
body.addObject(pocket6)
pocket6.Profile = sketch8
pocket6.setExpression("Length", "Params.pocket6_length")
pocket6.Reversed = True
doc.recompute()

fillet = doc.addObject("PartDesign::Fillet", "Fillet")
body.addObject(fillet)
fillet.Base = (pocket6, edges_at(pocket6, [
    (200, 40, 217.5),
    (-200, 40, 217.5),
    (28.586, -70, 2.5),
    (-28.586, -70, 2.5),
    (-200, 40, 2.5),
    (200, 40, 2.5),
]))
fillet.setExpression("Radius", "Params.fillet_radius")
doc.recompute()

fillet2 = doc.addObject("PartDesign::Fillet", "Fillet001")
body.addObject(fillet2)
fillet2.Base = (fillet, edges_at(fillet, [
    (0, 115, 220),
    (0, 111.132, 215),
    (-20, 40, 217.5),
    (20, 40, 217.5),
    (0, 115, 0),
    (0, 111.132, 5),
]))
fillet2.setExpression("Radius", "Params.fillet2_radius")

sketch9 = doc.addObject("Sketcher::SketchObject", "Sketch008")
body.addObject(sketch9)
sketch9.AttachmentSupport = (doc.XY_Plane, [""])
sketch9.MapMode = "FlatFace"
sketch9.AttachmentOffset = App.Placement(V(0, 0, 220), App.Rotation())
sketch9.addGeometry([
    Part.LineSegment(V(-236, 239, 0), V(-236, 146, 0)),
    Part.LineSegment(V(-236, 146, 0), V(177, 146, 0)),
    Part.LineSegment(V(177, 146, 0), V(177, 239, 0)),
    Part.LineSegment(V(177, 239, 0), V(-236, 239, 0)),
], False)
sketch9.addConstraint([
    Sketcher.Constraint("Coincident", 0, 2, 1, 1),
    Sketcher.Constraint("Coincident", 1, 2, 2, 1),
    Sketcher.Constraint("Coincident", 2, 2, 3, 1),
    Sketcher.Constraint("Coincident", 3, 2, 0, 1),
    Sketcher.Constraint("Vertical", 0),
    Sketcher.Constraint("Horizontal", 1),
    Sketcher.Constraint("Vertical", 2),
    Sketcher.Constraint("Horizontal", 3),
    Sketcher.Constraint("DistanceY", -1, 1, 0, 2, 146.0),
    Sketcher.Constraint("DistanceY", 0, 2, 0, 1, 93.426798),
    Sketcher.Constraint("DistanceX", 1, 1, 1, 2, 413.093142),
    Sketcher.Constraint("DistanceX", 0, 2, -1, 1, 235.807427),
])
pocket7 = doc.addObject("PartDesign::Pocket", "Pocket006")
body.addObject(pocket7)
pocket7.Profile = sketch9
pocket7.setExpression("Length", "Params.pocket7_length")

sketch10 = doc.addObject("Sketcher::SketchObject", "Sketch009")
body.addObject(sketch10)
sketch10.AttachmentSupport = (doc.XZ_Plane, [""])
sketch10.MapMode = "FlatFace"
sketch10.AttachmentOffset = App.Placement(V(0, 0, -146), App.Rotation())
sketch10.addGeometry([
    Part.Circle(V(130, 60, 0), V(0, 0, 1), 2.5),
    Part.Circle(V(50, 60, 0), V(0, 0, 1), 2.5),
    Part.Circle(V(-50, 60, 0), V(0, 0, 1), 2.5),
    Part.Circle(V(-130, 60, 0), V(0, 0, 1), 2.5),
    Part.Circle(V(130, 160, 0), V(0, 0, 1), 2.5),
    Part.Circle(V(50, 160, 0), V(0, 0, 1), 2.5),
    Part.Circle(V(-50, 160, 0), V(0, 0, 1), 2.5),
    Part.Circle(V(-130, 160, 0), V(0, 0, 1), 2.5),
    Part.Circle(V(10, 60, 0), V(0, 0, 1), 2.5),
    Part.Circle(V(90, 60, 0), V(0, 0, 1), 2.5),
    Part.Circle(V(90, 160, 0), V(0, 0, 1), 2.5),
    Part.Circle(V(10, 160, 0), V(0, 0, 1), 2.5),
    Part.Circle(V(-90, 160, 0), V(0, 0, 1), 2.5),
    Part.Circle(V(-10, 160, 0), V(0, 0, 1), 2.5),
    Part.Circle(V(-90, 60, 0), V(0, 0, 1), 2.5),
    Part.Circle(V(-10, 60, 0), V(0, 0, 1), 2.5),
    Part.LineSegment(V(120, 76, 0), V(60, 76, 0)),
    Part.LineSegment(V(60, 76, 0), V(90, 106, 0)),
    Part.LineSegment(V(90, 106, 0), V(120, 76, 0)),
    Part.LineSegment(V(124, 80, 0), V(94, 110, 0)),
    Part.LineSegment(V(94, 110, 0), V(124, 140, 0)),
    Part.LineSegment(V(124, 140, 0), V(124, 80, 0)),
    Part.LineSegment(V(120, 144, 0), V(90, 114, 0)),
    Part.LineSegment(V(90, 114, 0), V(60, 144, 0)),
    Part.LineSegment(V(60, 144, 0), V(120, 144, 0)),
    Part.LineSegment(V(56, 140, 0), V(86, 110, 0)),
    Part.LineSegment(V(86, 110, 0), V(56, 80, 0)),
    Part.LineSegment(V(56, 80, 0), V(56, 140, 0)),
    Part.LineSegment(V(34, 80, 0), V(4, 110, 0)),
    Part.LineSegment(V(4, 110, 0), V(34, 140, 0)),
    Part.LineSegment(V(34, 140, 0), V(34, 80, 0)),
    Part.LineSegment(V(-30, 76, 0), V(0, 106, 0)),
    Part.LineSegment(V(0, 106, 0), V(30, 76, 0)),
    Part.LineSegment(V(30, 76, 0), V(-30, 76, 0)),
    Part.LineSegment(V(-34, 140, 0), V(-4, 110, 0)),
    Part.LineSegment(V(-4, 110, 0), V(-34, 80, 0)),
    Part.LineSegment(V(-34, 80, 0), V(-34, 140, 0)),
    Part.LineSegment(V(30, 144, 0), V(0, 114, 0)),
    Part.LineSegment(V(0, 114, 0), V(-30, 144, 0)),
    Part.LineSegment(V(-30, 144, 0), V(30, 144, 0)),
    Part.LineSegment(V(-56, 80, 0), V(-86, 110, 0)),
    Part.LineSegment(V(-86, 110, 0), V(-56, 140, 0)),
    Part.LineSegment(V(-56, 140, 0), V(-56, 80, 0)),
    Part.LineSegment(V(-120, 76, 0), V(-90, 106, 0)),
    Part.LineSegment(V(-90, 106, 0), V(-60, 76, 0)),
    Part.LineSegment(V(-60, 76, 0), V(-120, 76, 0)),
    Part.LineSegment(V(-124, 140, 0), V(-94, 110, 0)),
    Part.LineSegment(V(-94, 110, 0), V(-124, 80, 0)),
    Part.LineSegment(V(-124, 80, 0), V(-124, 140, 0)),
    Part.LineSegment(V(-60, 144, 0), V(-90, 114, 0)),
    Part.LineSegment(V(-90, 114, 0), V(-120, 144, 0)),
    Part.LineSegment(V(-120, 144, 0), V(-60, 144, 0)),
], False)
sketch10.addConstraint([
    Sketcher.Constraint("Coincident", 16, 2, 17, 1),
    Sketcher.Constraint("Coincident", 17, 2, 18, 1),
    Sketcher.Constraint("Coincident", 18, 2, 16, 1),
    Sketcher.Constraint("Coincident", 19, 2, 20, 1),
    Sketcher.Constraint("Coincident", 20, 2, 21, 1),
    Sketcher.Constraint("Coincident", 21, 2, 19, 1),
    Sketcher.Constraint("Coincident", 22, 2, 23, 1),
    Sketcher.Constraint("Coincident", 23, 2, 24, 1),
    Sketcher.Constraint("Coincident", 24, 2, 22, 1),
    Sketcher.Constraint("Coincident", 25, 2, 26, 1),
    Sketcher.Constraint("Coincident", 26, 2, 27, 1),
    Sketcher.Constraint("Coincident", 27, 2, 25, 1),
    Sketcher.Constraint("Coincident", 28, 2, 29, 1),
    Sketcher.Constraint("Coincident", 29, 2, 30, 1),
    Sketcher.Constraint("Coincident", 30, 2, 28, 1),
    Sketcher.Constraint("Coincident", 31, 2, 32, 1),
    Sketcher.Constraint("Coincident", 32, 2, 33, 1),
    Sketcher.Constraint("Coincident", 33, 2, 31, 1),
    Sketcher.Constraint("Coincident", 34, 2, 35, 1),
    Sketcher.Constraint("Coincident", 35, 2, 36, 1),
    Sketcher.Constraint("Coincident", 36, 2, 34, 1),
    Sketcher.Constraint("Coincident", 37, 2, 38, 1),
    Sketcher.Constraint("Coincident", 38, 2, 39, 1),
    Sketcher.Constraint("Coincident", 39, 2, 37, 1),
    Sketcher.Constraint("Coincident", 40, 2, 41, 1),
    Sketcher.Constraint("Coincident", 41, 2, 42, 1),
    Sketcher.Constraint("Coincident", 42, 2, 40, 1),
    Sketcher.Constraint("Coincident", 43, 2, 44, 1),
    Sketcher.Constraint("Coincident", 44, 2, 45, 1),
    Sketcher.Constraint("Coincident", 45, 2, 43, 1),
    Sketcher.Constraint("Coincident", 46, 2, 47, 1),
    Sketcher.Constraint("Coincident", 47, 2, 48, 1),
    Sketcher.Constraint("Coincident", 48, 2, 46, 1),
    Sketcher.Constraint("Coincident", 49, 2, 50, 1),
    Sketcher.Constraint("Coincident", 50, 2, 51, 1),
    Sketcher.Constraint("Coincident", 51, 2, 49, 1),
    Sketcher.Constraint("Horizontal", 16),
    Sketcher.Constraint("Vertical", 21),
    Sketcher.Constraint("Horizontal", 24),
    Sketcher.Constraint("Vertical", 27),
    Sketcher.Constraint("Vertical", 30),
    Sketcher.Constraint("Horizontal", 33),
    Sketcher.Constraint("Vertical", 36),
    Sketcher.Constraint("Horizontal", 39),
    Sketcher.Constraint("Vertical", 42),
    Sketcher.Constraint("Horizontal", 45),
    Sketcher.Constraint("Vertical", 48),
    Sketcher.Constraint("Horizontal", 51),
    Sketcher.Constraint("Equal", 0, 1),
    Sketcher.Constraint("Equal", 1, 2),
    Sketcher.Constraint("Equal", 2, 3),
    Sketcher.Constraint("Equal", 3, 4),
    Sketcher.Constraint("Equal", 4, 5),
    Sketcher.Constraint("Equal", 5, 6),
    Sketcher.Constraint("Equal", 6, 7),
    Sketcher.Constraint("Equal", 7, 8),
    Sketcher.Constraint("Equal", 8, 9),
    Sketcher.Constraint("Equal", 9, 10),
    Sketcher.Constraint("Equal", 10, 11),
    Sketcher.Constraint("Equal", 11, 12),
    Sketcher.Constraint("Equal", 12, 13),
    Sketcher.Constraint("Equal", 13, 14),
    Sketcher.Constraint("Equal", 14, 15),
    Sketcher.Constraint("Symmetric", 1, 3, 2, 3, -2),
    Sketcher.Constraint("Symmetric", 0, 3, 3, 3, -2),
    Sketcher.Constraint("Symmetric", 5, 3, 6, 3, -2),
    Sketcher.Constraint("Symmetric", 4, 3, 7, 3, -2),
    Sketcher.Constraint("Symmetric", 10, 3, 12, 3, -2),
    Sketcher.Constraint("Symmetric", 11, 3, 13, 3, -2),
    Sketcher.Constraint("Symmetric", 9, 3, 14, 3, -2),
    Sketcher.Constraint("Symmetric", 8, 3, 15, 3, -2),
    Sketcher.Constraint("Symmetric", 28, 2, 34, 2, -2),
    Sketcher.Constraint("Symmetric", 30, 2, 35, 2, -2),
    Sketcher.Constraint("Symmetric", 25, 2, 40, 2, -2),
    Sketcher.Constraint("Symmetric", 27, 2, 41, 2, -2),
    Sketcher.Constraint("Symmetric", 17, 2, 43, 2, -2),
    Sketcher.Constraint("Symmetric", 16, 2, 44, 2, -2),
    Sketcher.Constraint("Symmetric", 19, 2, 46, 2, -2),
    Sketcher.Constraint("Symmetric", 21, 2, 47, 2, -2),
    Sketcher.Constraint("Symmetric", 22, 2, 49, 2, -2),
    Sketcher.Constraint("Symmetric", 24, 2, 50, 2, -2),
    Sketcher.Constraint("PointOnObject", 31, 2, -2),
    Sketcher.Constraint("PointOnObject", 37, 2, -2),
    Sketcher.Constraint("Perpendicular", 17, 18),
    Sketcher.Constraint("Parallel", 18, 19),
    Sketcher.Constraint("Perpendicular", 19, 20),
    Sketcher.Constraint("Parallel", 20, 22),
    Sketcher.Constraint("Perpendicular", 22, 23),
    Sketcher.Constraint("Parallel", 23, 25),
    Sketcher.Constraint("Perpendicular", 25, 26),
    Sketcher.Constraint("Perpendicular", 26, 28),
    Sketcher.Constraint("Perpendicular", 28, 29),
    Sketcher.Constraint("Parallel", 29, 31),
    Sketcher.Constraint("Perpendicular", 31, 32),
    Sketcher.Constraint("Parallel", 32, 34),
    Sketcher.Constraint("Perpendicular", 34, 35),
    Sketcher.Constraint("Parallel", 35, 37),
    Sketcher.Constraint("Perpendicular", 37, 38),
    Sketcher.Constraint("Parallel", 38, 40),
    Sketcher.Constraint("Parallel", 41, 43),
    Sketcher.Constraint("Parallel", 44, 46),
    Sketcher.Constraint("Parallel", 47, 49),
    Sketcher.Constraint("Horizontal", 0, 3, 1, 3),
    Sketcher.Constraint("Horizontal", 4, 3, 5, 3),
    Sketcher.Constraint("Horizontal", 3, 3, 8, 3),
    Sketcher.Constraint("Horizontal", 8, 3, 9, 3),
    Sketcher.Constraint("Horizontal", 7, 3, 10, 3),
    Sketcher.Constraint("Horizontal", 10, 3, 11, 3),
    Sketcher.Constraint("Horizontal", 19, 2, 25, 2),
    Sketcher.Constraint("Horizontal", 21, 2, 26, 2),
    Sketcher.Constraint("Horizontal", 25, 2, 28, 2),
    Sketcher.Constraint("Horizontal", 27, 2, 29, 2),
    Sketcher.Constraint("Horizontal", 17, 2, 31, 2),
    Sketcher.Constraint("Horizontal", 18, 2, 32, 2),
    Sketcher.Constraint("Horizontal", 22, 2, 37, 2),
    Sketcher.Constraint("Horizontal", 24, 2, 38, 2),
    Sketcher.Constraint("Vertical", 0, 3, 4, 3),
    Sketcher.Constraint("Vertical", 1, 3, 5, 3),
    Sketcher.Constraint("Vertical", 9, 3, 10, 3),
    Sketcher.Constraint("Vertical", 8, 3, 11, 3),
    Sketcher.Constraint("Vertical", 10, 3, 17, 2),
    Sketcher.Constraint("Vertical", 17, 2, 22, 2),
    Sketcher.Constraint("Vertical", 16, 2, 23, 2),
    Sketcher.Constraint("Equal", 51, 21),
    Sketcher.Constraint("Diameter", 0, 5.0),
    Sketcher.Constraint("DistanceX", 16, 2, 16, 1, 60.0),
    Sketcher.Constraint("DistanceX", -1, 1, 0, 3, 130.0),
    Sketcher.Constraint("DistanceY", -1, 1, 0, 3, 60.0),
    Sketcher.Constraint("DistanceX", -1, 1, 1, 3, 50.0),
    Sketcher.Constraint("DistanceY", -1, 1, 4, 3, 160.0),
    Sketcher.Constraint("DistanceX", -1, 1, 8, 3, 10.0),
    Sketcher.Constraint("DistanceX", -1, 1, 9, 3, 90.0),
    Sketcher.Constraint("DistanceY", -1, 1, 16, 2, 76.0),
    Sketcher.Constraint("DistanceX", -1, 1, 19, 2, 94.0),
    Sketcher.Constraint("DistanceY", -1, 1, 19, 2, 110.0),
    Sketcher.Constraint("DistanceY", -1, 1, 22, 2, 114.0),
    Sketcher.Constraint("DistanceX", -1, 1, 25, 2, 86.0),
    Sketcher.Constraint("DistanceX", -1, 1, 28, 2, 4.0),
])
sketch10.setExpression("Constraints[124]", "Params.sketch10_diameter")
sketch10.setExpression("Constraints[125]", "Params.sketch10_width")
pocket8 = doc.addObject("PartDesign::Pocket", "Pocket007")
body.addObject(pocket8)
pocket8.Profile = sketch10
pocket8.setExpression("Length", "Params.pocket8_length")
pocket8.Reversed = True
doc.recompute()

fillet3 = doc.addObject("PartDesign::Fillet", "Fillet002")
body.addObject(fillet3)
fillet3.Base = (pocket8, edges_at(pocket8, [
    (120, 143, 144),
    (60, 143, 144),
    (90, 143, 114),
    (56, 143, 140),
    (56, 143, 80),
    (86, 143, 110),
    (124, 143, 80),
    (124, 143, 140),
    (94, 143, 110),
    (-30, 143, 76),
    (30, 143, 76),
    (0, 143, 106),
    (-120, 143, 76),
    (-60, 143, 76),
    (-90, 143, 106),
    (-34, 143, 140),
    (-34, 143, 80),
    (-4, 143, 110),
    (34, 143, 80),
    (34, 143, 140),
    (4, 143, 110),
    (30, 143, 144),
    (-30, 143, 144),
    (0, 143, 114),
    (90, 143, 106),
    (60, 143, 76),
    (120, 143, 76),
    (-124, 143, 140),
    (-124, 143, 80),
    (-94, 143, 110),
    (-56, 143, 80),
    (-56, 143, 140),
    (-86, 143, 110),
    (-60, 143, 144),
    (-120, 143, 144),
    (-90, 143, 114),
]))
fillet3.setExpression("Radius", "Params.fillet3_radius")

doc.recompute()
